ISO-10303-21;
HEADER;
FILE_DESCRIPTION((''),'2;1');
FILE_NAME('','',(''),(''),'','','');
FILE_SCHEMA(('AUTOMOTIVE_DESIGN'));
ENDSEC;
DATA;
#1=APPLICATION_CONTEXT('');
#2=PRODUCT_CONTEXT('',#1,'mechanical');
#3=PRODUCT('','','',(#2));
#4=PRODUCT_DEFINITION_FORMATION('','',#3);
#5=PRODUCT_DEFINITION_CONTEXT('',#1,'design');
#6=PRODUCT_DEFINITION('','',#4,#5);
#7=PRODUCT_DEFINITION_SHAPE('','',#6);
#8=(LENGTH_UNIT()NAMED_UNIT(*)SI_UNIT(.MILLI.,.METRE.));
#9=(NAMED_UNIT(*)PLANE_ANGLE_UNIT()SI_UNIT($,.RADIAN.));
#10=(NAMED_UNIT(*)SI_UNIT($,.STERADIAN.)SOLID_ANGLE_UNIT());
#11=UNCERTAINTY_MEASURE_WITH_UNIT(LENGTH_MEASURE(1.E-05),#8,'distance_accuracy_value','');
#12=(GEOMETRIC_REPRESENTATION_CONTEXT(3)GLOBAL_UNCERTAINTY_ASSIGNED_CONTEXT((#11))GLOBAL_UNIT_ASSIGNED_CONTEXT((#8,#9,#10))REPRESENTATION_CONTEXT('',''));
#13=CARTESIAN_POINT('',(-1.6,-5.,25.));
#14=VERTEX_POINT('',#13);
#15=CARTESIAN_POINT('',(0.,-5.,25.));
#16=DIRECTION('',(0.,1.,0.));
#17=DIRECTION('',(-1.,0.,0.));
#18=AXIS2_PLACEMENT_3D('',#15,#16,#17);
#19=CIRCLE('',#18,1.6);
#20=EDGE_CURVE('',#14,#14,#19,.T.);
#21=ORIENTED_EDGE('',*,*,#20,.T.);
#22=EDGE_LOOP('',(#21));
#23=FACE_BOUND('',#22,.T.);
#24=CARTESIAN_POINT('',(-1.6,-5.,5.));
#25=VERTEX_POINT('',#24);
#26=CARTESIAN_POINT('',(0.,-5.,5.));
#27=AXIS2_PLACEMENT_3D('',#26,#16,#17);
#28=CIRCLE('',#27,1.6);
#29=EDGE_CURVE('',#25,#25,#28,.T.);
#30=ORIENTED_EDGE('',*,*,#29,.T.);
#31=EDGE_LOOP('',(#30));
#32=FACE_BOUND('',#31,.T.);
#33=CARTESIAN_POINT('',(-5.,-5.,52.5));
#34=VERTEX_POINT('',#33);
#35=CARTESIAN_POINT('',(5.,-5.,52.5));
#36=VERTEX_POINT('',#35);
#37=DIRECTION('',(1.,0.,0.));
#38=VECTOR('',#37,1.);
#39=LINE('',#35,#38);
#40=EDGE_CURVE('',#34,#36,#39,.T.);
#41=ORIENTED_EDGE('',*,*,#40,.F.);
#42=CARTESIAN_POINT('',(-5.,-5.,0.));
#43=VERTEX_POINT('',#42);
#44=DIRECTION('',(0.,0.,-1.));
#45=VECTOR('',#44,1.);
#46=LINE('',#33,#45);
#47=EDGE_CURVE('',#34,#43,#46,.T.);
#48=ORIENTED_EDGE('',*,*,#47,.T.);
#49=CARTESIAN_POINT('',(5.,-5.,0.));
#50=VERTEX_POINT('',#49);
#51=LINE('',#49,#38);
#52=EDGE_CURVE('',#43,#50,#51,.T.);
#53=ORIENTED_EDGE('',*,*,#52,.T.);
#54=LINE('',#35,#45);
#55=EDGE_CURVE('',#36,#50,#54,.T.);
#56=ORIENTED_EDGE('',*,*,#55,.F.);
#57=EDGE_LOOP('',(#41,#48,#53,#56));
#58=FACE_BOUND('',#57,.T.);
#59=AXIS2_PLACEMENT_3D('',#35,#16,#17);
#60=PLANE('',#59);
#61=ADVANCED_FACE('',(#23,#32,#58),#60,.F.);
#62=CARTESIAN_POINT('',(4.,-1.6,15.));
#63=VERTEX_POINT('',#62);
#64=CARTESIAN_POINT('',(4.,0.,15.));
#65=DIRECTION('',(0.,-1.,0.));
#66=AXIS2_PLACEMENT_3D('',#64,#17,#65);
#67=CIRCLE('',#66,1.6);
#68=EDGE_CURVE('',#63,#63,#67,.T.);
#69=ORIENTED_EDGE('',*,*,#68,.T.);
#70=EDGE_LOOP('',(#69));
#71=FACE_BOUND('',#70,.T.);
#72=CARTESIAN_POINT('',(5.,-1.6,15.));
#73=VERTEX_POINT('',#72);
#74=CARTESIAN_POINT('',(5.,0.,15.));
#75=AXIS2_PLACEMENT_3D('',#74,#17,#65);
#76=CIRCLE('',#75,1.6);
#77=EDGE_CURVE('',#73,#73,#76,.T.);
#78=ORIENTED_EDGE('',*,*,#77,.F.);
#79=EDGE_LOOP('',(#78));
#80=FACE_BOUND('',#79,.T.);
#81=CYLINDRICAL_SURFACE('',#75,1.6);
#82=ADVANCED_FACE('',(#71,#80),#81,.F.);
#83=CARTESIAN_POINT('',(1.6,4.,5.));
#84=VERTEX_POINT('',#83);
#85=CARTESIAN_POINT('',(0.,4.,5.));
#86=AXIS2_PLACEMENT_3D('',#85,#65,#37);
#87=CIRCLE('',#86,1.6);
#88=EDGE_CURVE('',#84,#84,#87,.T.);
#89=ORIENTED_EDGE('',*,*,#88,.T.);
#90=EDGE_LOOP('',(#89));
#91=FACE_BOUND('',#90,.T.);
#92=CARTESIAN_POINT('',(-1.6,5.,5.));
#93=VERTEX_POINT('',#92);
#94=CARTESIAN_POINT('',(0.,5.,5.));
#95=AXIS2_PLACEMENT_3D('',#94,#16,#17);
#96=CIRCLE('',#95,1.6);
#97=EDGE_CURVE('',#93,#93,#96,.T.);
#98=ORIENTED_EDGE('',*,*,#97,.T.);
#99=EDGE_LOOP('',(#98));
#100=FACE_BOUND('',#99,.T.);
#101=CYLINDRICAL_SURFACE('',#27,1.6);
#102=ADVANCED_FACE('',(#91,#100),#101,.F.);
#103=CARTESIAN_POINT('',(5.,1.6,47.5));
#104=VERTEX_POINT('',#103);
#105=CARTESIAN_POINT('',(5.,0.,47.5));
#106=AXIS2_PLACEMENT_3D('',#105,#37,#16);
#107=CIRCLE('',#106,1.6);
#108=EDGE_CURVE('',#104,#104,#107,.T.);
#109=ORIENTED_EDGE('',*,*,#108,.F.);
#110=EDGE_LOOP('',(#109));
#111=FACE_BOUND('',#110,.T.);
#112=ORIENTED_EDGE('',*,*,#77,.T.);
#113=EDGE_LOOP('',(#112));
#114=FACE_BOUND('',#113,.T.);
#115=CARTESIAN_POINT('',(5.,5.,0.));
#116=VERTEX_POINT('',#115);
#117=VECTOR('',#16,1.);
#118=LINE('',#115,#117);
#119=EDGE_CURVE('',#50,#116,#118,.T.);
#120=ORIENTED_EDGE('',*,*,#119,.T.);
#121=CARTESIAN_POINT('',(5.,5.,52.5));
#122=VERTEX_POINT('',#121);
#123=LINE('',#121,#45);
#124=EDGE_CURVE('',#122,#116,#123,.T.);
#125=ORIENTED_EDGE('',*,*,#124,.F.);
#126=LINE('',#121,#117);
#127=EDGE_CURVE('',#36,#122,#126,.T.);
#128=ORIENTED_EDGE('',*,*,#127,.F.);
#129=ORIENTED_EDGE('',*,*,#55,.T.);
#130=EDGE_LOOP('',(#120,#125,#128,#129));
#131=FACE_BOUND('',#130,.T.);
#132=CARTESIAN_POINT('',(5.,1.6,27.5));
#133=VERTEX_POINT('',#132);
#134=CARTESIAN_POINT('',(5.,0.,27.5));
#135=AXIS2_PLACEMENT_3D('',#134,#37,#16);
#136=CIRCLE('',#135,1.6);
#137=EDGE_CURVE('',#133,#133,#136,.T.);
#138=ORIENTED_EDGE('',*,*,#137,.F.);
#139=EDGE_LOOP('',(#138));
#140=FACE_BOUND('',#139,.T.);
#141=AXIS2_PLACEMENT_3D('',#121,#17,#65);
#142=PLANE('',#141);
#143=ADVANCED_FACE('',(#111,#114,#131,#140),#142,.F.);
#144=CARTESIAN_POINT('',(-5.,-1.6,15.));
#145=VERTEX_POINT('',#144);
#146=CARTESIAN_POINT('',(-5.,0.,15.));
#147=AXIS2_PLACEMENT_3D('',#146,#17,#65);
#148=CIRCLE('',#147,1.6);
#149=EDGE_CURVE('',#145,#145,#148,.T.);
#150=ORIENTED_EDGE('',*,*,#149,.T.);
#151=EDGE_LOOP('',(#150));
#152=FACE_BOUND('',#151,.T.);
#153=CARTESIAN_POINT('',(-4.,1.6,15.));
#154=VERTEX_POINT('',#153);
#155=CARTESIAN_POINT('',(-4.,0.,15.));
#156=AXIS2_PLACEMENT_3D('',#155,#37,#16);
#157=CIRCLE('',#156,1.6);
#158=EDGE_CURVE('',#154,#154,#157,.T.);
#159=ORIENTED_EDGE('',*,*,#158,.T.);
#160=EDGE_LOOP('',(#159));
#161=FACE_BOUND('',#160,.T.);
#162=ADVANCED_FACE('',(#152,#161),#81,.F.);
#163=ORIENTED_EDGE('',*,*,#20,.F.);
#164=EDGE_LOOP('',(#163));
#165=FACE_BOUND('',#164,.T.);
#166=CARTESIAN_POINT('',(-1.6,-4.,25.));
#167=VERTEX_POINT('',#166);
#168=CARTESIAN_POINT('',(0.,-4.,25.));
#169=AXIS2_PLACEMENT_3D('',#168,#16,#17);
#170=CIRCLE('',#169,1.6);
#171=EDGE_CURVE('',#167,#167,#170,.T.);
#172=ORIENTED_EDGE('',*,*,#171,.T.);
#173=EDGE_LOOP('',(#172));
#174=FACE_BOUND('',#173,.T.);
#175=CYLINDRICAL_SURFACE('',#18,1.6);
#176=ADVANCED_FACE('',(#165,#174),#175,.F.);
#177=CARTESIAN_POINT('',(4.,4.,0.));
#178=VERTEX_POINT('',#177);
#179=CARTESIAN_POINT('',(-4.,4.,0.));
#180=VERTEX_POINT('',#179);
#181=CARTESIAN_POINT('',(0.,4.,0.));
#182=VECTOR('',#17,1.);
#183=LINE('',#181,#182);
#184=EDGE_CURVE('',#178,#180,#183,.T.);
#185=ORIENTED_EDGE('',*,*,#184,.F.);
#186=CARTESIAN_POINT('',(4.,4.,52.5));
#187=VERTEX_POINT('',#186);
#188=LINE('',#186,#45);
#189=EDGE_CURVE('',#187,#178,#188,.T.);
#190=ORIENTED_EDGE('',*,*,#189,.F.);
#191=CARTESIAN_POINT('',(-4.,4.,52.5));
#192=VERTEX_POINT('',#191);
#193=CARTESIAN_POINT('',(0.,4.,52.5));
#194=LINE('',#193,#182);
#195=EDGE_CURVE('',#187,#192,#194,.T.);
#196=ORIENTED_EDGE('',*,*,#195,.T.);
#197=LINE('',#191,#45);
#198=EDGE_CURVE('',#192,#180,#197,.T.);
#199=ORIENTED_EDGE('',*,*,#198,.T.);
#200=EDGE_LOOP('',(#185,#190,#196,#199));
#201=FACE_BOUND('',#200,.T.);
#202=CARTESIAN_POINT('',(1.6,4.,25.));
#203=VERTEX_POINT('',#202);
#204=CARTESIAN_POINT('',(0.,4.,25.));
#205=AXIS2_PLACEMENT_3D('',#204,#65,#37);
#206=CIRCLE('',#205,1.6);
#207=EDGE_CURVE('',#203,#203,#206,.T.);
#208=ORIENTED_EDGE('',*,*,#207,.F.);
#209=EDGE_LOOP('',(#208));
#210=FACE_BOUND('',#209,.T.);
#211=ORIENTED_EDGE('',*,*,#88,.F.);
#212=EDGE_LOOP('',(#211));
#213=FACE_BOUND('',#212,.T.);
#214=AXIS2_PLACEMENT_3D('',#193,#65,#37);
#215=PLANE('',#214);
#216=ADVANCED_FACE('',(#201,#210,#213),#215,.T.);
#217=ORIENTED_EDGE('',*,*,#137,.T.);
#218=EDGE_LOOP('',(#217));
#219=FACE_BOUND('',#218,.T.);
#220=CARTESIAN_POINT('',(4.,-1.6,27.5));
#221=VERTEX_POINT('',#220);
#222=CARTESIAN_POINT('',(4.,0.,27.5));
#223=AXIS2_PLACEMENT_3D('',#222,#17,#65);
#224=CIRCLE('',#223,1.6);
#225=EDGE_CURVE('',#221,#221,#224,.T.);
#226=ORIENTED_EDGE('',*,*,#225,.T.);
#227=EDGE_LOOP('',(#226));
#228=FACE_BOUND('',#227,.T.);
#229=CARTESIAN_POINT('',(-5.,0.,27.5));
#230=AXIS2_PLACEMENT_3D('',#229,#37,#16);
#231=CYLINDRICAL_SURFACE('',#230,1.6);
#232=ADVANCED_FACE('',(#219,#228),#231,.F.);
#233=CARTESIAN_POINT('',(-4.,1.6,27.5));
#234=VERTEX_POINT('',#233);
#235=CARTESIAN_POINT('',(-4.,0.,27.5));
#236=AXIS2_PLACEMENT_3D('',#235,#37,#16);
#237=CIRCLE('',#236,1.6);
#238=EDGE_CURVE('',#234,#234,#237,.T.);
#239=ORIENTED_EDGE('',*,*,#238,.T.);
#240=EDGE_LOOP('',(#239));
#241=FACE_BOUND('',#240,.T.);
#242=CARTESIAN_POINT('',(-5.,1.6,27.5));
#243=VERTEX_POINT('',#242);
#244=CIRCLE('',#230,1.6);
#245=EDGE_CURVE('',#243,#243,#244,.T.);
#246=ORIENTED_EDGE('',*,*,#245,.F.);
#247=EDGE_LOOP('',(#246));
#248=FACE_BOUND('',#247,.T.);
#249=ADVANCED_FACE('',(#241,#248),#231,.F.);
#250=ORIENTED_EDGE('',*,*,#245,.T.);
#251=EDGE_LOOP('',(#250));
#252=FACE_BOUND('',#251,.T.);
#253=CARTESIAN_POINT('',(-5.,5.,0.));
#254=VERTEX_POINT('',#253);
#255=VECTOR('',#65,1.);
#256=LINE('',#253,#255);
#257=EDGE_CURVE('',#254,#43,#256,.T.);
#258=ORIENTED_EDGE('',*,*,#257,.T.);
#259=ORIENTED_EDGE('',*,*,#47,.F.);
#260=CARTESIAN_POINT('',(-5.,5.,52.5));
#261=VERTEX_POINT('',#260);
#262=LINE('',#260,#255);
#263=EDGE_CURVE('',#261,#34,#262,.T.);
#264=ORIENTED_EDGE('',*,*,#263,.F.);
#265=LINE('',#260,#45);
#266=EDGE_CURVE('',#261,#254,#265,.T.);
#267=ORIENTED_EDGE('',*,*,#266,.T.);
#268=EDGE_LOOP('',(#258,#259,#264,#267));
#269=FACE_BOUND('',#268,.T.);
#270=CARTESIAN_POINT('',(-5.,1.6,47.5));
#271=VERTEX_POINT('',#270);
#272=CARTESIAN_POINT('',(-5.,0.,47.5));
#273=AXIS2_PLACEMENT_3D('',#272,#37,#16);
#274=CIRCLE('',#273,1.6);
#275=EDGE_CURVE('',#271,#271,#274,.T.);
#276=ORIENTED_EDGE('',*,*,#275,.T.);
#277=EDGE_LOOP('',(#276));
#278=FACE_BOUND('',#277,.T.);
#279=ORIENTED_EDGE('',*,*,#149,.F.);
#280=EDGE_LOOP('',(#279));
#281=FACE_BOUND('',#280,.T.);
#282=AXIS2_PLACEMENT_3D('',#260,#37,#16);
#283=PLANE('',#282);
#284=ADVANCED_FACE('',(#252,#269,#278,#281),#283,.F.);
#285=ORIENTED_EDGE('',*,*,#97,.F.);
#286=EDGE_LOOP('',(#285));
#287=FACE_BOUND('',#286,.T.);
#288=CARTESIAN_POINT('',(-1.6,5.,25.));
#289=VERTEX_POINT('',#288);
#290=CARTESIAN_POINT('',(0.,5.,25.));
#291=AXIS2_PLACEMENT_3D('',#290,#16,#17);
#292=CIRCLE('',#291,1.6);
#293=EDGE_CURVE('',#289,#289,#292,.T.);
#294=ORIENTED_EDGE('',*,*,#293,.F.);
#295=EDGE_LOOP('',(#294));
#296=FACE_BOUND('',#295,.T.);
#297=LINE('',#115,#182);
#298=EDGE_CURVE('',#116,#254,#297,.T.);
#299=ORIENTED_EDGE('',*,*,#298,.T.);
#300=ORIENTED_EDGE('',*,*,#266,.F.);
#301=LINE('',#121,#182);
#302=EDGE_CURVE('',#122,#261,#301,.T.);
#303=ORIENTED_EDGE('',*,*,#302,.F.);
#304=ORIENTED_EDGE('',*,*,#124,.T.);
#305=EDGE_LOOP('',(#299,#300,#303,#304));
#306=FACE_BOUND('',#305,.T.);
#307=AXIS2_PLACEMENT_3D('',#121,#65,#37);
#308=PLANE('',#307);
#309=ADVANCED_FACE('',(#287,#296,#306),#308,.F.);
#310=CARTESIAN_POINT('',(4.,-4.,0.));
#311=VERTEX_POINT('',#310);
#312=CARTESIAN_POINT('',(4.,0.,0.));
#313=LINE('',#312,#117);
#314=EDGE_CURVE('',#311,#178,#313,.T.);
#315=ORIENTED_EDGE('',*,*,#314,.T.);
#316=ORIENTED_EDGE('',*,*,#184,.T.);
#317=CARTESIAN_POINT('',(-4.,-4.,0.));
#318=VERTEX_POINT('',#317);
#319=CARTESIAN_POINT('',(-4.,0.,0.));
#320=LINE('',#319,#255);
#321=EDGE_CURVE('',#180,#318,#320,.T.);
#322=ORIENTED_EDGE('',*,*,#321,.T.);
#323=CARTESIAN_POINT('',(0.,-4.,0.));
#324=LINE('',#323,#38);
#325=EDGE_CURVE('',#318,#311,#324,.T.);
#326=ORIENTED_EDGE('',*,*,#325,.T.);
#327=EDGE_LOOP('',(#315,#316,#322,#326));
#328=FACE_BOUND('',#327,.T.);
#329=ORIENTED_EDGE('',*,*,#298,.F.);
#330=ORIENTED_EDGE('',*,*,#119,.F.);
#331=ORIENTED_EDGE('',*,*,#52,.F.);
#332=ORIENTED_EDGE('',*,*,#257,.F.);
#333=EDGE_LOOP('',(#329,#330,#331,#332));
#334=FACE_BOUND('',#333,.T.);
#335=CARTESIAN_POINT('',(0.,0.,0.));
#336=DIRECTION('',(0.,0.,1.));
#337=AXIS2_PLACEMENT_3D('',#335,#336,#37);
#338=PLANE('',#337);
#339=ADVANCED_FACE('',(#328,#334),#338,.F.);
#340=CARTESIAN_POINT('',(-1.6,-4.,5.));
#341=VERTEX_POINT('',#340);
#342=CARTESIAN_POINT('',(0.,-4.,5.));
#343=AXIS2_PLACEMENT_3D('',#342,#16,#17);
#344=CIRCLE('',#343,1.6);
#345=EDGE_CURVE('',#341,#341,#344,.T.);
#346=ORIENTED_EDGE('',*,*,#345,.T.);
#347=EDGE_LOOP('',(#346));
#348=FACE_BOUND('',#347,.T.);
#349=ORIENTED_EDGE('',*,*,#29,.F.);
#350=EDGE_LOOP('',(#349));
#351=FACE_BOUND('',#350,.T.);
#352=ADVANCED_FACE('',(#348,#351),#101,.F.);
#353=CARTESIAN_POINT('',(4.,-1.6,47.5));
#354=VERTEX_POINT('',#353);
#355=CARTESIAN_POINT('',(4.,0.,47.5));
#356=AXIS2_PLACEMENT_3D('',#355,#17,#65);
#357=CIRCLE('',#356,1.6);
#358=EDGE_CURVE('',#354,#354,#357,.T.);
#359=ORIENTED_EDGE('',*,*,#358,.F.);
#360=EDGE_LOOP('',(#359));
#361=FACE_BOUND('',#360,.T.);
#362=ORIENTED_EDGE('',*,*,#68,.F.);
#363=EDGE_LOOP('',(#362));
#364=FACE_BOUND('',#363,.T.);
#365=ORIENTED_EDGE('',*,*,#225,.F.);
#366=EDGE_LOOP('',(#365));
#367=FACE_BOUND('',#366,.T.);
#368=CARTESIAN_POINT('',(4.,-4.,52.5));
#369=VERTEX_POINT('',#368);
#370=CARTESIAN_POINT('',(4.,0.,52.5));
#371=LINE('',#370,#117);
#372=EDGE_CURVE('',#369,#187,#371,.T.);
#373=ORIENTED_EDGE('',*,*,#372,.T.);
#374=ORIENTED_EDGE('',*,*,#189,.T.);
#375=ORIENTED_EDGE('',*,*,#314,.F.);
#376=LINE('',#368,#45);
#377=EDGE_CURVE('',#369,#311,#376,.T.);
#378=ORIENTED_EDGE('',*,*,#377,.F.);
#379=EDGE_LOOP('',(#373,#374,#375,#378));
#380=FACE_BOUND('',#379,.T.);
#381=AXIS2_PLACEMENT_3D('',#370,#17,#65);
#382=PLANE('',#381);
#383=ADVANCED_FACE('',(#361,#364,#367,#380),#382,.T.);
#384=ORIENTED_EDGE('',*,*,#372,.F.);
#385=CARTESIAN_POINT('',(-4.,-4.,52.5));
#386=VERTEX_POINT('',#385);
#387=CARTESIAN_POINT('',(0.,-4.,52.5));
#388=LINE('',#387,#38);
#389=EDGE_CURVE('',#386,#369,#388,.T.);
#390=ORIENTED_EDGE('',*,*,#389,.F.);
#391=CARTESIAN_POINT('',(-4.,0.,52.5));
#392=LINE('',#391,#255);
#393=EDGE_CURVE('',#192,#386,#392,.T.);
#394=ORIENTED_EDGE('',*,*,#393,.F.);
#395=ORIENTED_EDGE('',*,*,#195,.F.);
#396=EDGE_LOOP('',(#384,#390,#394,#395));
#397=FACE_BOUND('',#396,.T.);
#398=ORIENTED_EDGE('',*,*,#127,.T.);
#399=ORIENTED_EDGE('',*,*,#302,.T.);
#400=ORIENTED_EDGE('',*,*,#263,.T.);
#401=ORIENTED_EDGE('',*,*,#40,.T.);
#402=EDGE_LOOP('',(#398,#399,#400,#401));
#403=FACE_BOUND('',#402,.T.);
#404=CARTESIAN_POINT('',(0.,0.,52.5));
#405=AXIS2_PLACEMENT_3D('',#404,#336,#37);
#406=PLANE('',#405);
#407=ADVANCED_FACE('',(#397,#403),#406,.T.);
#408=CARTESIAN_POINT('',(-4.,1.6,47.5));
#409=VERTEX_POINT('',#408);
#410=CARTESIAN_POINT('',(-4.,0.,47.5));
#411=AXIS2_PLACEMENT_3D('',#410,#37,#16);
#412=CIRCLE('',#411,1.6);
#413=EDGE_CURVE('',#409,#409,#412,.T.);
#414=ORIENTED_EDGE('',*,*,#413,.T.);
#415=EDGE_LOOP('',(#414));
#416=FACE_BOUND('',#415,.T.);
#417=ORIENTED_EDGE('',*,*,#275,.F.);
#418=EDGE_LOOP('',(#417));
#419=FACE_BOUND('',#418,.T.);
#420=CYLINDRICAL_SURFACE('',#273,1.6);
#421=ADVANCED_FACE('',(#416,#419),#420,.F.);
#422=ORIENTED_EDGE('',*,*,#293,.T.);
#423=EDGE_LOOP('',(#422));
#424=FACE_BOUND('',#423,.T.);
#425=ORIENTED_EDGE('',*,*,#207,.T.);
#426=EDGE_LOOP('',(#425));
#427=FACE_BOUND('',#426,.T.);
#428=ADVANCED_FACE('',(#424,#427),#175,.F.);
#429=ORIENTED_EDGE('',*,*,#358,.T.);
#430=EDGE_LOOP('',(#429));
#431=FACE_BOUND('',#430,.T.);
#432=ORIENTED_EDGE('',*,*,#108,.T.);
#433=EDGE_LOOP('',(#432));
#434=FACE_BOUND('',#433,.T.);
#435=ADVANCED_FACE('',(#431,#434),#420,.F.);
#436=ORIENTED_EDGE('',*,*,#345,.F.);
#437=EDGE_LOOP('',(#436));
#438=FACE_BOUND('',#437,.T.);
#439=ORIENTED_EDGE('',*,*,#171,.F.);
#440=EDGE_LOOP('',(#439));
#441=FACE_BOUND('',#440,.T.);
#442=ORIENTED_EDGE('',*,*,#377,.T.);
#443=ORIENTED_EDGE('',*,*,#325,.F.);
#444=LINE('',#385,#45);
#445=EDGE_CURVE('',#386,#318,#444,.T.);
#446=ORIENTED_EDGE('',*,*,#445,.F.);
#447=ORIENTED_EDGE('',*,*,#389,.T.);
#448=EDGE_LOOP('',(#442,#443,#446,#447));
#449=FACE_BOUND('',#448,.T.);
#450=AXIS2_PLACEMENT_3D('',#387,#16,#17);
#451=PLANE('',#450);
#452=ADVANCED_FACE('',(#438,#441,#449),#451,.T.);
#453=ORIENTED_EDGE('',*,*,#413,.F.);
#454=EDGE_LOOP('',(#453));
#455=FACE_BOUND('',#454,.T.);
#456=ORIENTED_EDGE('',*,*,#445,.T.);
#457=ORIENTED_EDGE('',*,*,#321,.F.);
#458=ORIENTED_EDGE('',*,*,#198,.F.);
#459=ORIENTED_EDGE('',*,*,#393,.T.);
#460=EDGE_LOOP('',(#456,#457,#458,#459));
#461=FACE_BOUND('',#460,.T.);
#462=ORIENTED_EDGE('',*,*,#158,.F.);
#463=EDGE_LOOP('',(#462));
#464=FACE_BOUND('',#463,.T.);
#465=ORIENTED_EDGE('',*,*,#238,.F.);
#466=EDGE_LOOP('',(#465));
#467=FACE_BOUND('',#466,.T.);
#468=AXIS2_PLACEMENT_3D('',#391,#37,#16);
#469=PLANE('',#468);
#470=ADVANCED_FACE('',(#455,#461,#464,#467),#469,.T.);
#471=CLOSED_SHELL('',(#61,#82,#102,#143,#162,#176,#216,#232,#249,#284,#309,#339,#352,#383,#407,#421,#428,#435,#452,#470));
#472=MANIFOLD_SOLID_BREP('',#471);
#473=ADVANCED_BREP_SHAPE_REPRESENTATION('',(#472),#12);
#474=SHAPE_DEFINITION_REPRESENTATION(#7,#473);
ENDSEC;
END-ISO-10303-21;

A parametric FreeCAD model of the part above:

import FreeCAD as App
import Part
import Sketcher

doc = App.newDocument("Part")
body = doc.addObject("PartDesign::Body", "Body")

# Sketch on XY plane
sketch1 = body.newObject("Sketcher::SketchObject", "Sketch")
sketch1.AttachmentSupport = (doc.getObject("XY_Plane"), [""])
sketch1.MapMode = "FlatFace"
sketch1.addGeometry([
    Part.LineSegment(App.Vector(-5, 5, 0), App.Vector(-5, -5, 0)),  # 0
    Part.LineSegment(App.Vector(-5, -5, 0), App.Vector(5, -5, 0)),  # 1
    Part.LineSegment(App.Vector(5, -5, 0), App.Vector(5, 5, 0)),  # 2
    Part.LineSegment(App.Vector(5, 5, 0), App.Vector(-5, 5, 0)),  # 3
    Part.LineSegment(App.Vector(4, -4, 0), App.Vector(-4, -4, 0)),  # 4
    Part.LineSegment(App.Vector(-4, -4, 0), App.Vector(-4, 4, 0)),  # 5
    Part.LineSegment(App.Vector(-4, 4, 0), App.Vector(4, 4, 0)),  # 6
    Part.LineSegment(App.Vector(4, 4, 0), App.Vector(4, -4, 0)),  # 7
], False)
sketch1.addConstraint([
    Sketcher.Constraint("Coincident", 0, 2, 1, 1),
    Sketcher.Constraint("Coincident", 1, 2, 2, 1),
    Sketcher.Constraint("Coincident", 2, 2, 3, 1),
    Sketcher.Constraint("Coincident", 3, 2, 0, 1),
    Sketcher.Constraint("Coincident", 4, 2, 5, 1),
    Sketcher.Constraint("Coincident", 5, 2, 6, 1),
    Sketcher.Constraint("Coincident", 6, 2, 7, 1),
    Sketcher.Constraint("Coincident", 7, 2, 4, 1),
    Sketcher.Constraint("Vertical", 0),
    Sketcher.Constraint("Horizontal", 1),
    Sketcher.Constraint("Vertical", 2),
    Sketcher.Constraint("Horizontal", 3),
    Sketcher.Constraint("Horizontal", 4),
    Sketcher.Constraint("Vertical", 5),
    Sketcher.Constraint("Horizontal", 6),
    Sketcher.Constraint("Vertical", 7),
    Sketcher.Constraint("Symmetric", 0, 2, 2, 2, -1, 1),
    Sketcher.Constraint("Symmetric", 4, 2, 6, 2, -1, 1),
    Sketcher.Constraint("Equal", 3, 0),
    Sketcher.Constraint("Equal", 6, 5),
    Sketcher.Constraint("DistanceX", 1, 1, 1, 2, 10.0),
    Sketcher.Constraint("DistanceX", 4, 2, 4, 1, 8.0),
])
pad1 = body.newObject("PartDesign::Pad", "Pad")
pad1.Profile = sketch1
pad1.Length = 52.5

# Sketch on XZ plane
sketch2 = body.newObject("Sketcher::SketchObject", "Sketch001")
sketch2.AttachmentSupport = (doc.getObject("XZ_Plane"), [""])
sketch2.MapMode = "FlatFace"
sketch2.AttachmentOffset = App.Placement(App.Vector(0, 0, -5), App.Rotation())
sketch2.addGeometry([
    Part.Circle(App.Vector(0, 5, 0), App.Vector(0, 0, 1), 1.6),
    Part.Circle(App.Vector(0, 25, 0), App.Vector(0, 0, 1), 1.6),
], False)
sketch2.addConstraint([
    Sketcher.Constraint("Equal", 0, 1),
    Sketcher.Constraint("PointOnObject", 0, 3, -2),
    Sketcher.Constraint("PointOnObject", 1, 3, -2),
    Sketcher.Constraint("Diameter", 0, 3.2),
    Sketcher.Constraint("DistanceY", -1, 1, 0, 3, 5.0),
    Sketcher.Constraint("DistanceY", -1, 1, 1, 3, 25.0),
])
pocket1 = body.newObject("PartDesign::Pocket", "Pocket")
pocket1.Profile = sketch2
pocket1.Type = "ThroughAll"
pocket1.Reversed = True

# Sketch on YZ plane
sketch3 = body.newObject("Sketcher::SketchObject", "Sketch002")
sketch3.AttachmentSupport = (doc.getObject("YZ_Plane"), [""])
sketch3.MapMode = "FlatFace"
sketch3.AttachmentOffset = App.Placement(App.Vector(0, 0, 5), App.Rotation())
sketch3.addGeometry([
    Part.Circle(App.Vector(0, 47.5, 0), App.Vector(0, 0, 1), 1.6),
    Part.Circle(App.Vector(0, 27.5, 0), App.Vector(0, 0, 1), 1.6),
], False)
sketch3.addConstraint([
    Sketcher.Constraint("Equal", 0, 1),
    Sketcher.Constraint("PointOnObject", 0, 3, -2),
    Sketcher.Constraint("PointOnObject", 1, 3, -2),
    Sketcher.Constraint("Diameter", 0, 3.2),
    Sketcher.Constraint("DistanceY", 1, 3, 0, 3, 20.0),
    Sketcher.Constraint("DistanceY", -1, 1, 0, 3, 47.5),
])
pocket2 = body.newObject("PartDesign::Pocket", "Pocket001")
pocket2.Profile = sketch3
pocket2.Type = "ThroughAll"

# Sketch on YZ plane
sketch4 = body.newObject("Sketcher::SketchObject", "Sketch003")
sketch4.AttachmentSupport = (doc.getObject("YZ_Plane"), [""])
sketch4.MapMode = "FlatFace"
sketch4.AttachmentOffset = App.Placement(App.Vector(0, 0, -5), App.Rotation())
sketch4.addGeometry(Part.Circle(App.Vector(0, 15, 0), App.Vector(0, 0, 1), 1.6), False)
sketch4.addConstraint([
    Sketcher.Constraint("PointOnObject", 0, 3, -2),
    Sketcher.Constraint("Diameter", 0, 3.2),
    Sketcher.Constraint("DistanceY", -1, 1, 0, 3, 15.0),
])
pocket3 = body.newObject("PartDesign::Pocket", "Pocket002")
pocket3.Profile = sketch4
pocket3.Type = "ThroughAll"
pocket3.Reversed = True

doc.recompute()
